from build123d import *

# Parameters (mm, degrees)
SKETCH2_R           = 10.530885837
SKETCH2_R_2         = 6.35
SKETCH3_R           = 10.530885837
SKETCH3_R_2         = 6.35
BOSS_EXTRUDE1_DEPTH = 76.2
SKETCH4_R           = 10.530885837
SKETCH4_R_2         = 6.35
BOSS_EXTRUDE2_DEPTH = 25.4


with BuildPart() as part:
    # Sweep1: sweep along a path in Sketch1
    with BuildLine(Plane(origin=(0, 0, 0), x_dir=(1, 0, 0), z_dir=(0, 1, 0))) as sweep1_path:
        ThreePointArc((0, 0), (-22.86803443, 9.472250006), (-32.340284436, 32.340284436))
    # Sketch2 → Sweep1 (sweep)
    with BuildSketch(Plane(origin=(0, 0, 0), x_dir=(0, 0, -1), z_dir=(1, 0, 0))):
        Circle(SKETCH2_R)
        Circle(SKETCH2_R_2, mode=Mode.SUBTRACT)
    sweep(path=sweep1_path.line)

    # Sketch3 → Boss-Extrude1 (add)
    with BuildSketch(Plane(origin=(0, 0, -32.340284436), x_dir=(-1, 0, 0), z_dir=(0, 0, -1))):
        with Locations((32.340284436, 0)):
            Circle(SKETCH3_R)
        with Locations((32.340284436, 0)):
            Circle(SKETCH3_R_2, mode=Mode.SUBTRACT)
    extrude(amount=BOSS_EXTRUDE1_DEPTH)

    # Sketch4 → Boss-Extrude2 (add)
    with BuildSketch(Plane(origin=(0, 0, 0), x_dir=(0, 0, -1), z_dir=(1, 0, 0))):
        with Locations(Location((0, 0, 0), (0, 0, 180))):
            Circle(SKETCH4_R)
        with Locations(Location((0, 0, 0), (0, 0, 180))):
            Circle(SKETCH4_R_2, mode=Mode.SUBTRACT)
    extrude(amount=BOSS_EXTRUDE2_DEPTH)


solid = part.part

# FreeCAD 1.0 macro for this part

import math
import FreeCAD as App
import Part
import Sketcher
from FreeCAD import Vector
Q = App.Units.Quantity

doc = App.newDocument("Part")
body = doc.addObject("PartDesign::Body", "Body")

# Sketch on YZ plane
sketch1 = body.newObject("Sketcher::SketchObject", "Sketch")
sketch1.AttachmentSupport = (doc.getObject("YZ_Plane"), [""])
sketch1.MapMode = "FlatFace"
sketch1.addGeometry([
    Part.Circle(Vector(0, 0, 0), Vector(0, 0, 1), 11),
    Part.Circle(Vector(0, 0, 0), Vector(0, 0, 1), 6),
], False)
sketch1.addConstraint([
    Sketcher.Constraint("Coincident", 0, 3, -1, 1),
    Sketcher.Constraint("Coincident", 1, 3, -1, 1),
    Sketcher.Constraint("Diameter", 1, Q("0.5 in")),
    Sketcher.Constraint("Diameter", 0, Q("21.061772 mm")),
])

# Sketch on XZ plane
sketch2 = body.newObject("Sketcher::SketchObject", "Sketch001")
sketch2.AttachmentSupport = (doc.getObject("XZ_Plane"), [""])
sketch2.MapMode = "FlatFace"
sketch2.addGeometry(Part.ArcOfCircle(Part.Circle(Vector(0, -32, 0), Vector(0, 0, 1), 32), math.radians(90), math.radians(180)), False)
sketch2.addConstraint([
    Sketcher.Constraint("Coincident", 0, 1, -1, 1),
    Sketcher.Constraint("PointOnObject", 0, 3, -2),
    Sketcher.Constraint("Radius", 0, Q("32.340284 mm")),
    Sketcher.Constraint("DistanceY", 0, 2, -1, 1, Q("32.340284 mm")),
])
doc.recompute()

additivepipe = body.newObject("PartDesign::AdditivePipe", "AdditivePipe")
additivepipe.Profile = sketch1
additivepipe.Spine = (sketch2, ["Edge1"])

# Sketch on XY plane
sketch3 = body.newObject("Sketcher::SketchObject", "Sketch002")
sketch3.AttachmentSupport = (doc.getObject("XY_Plane"), [""])
sketch3.MapMode = "FlatFace"
sketch3.AttachmentOffset = App.Placement(Vector(0, 0, -32.340284), App.Rotation())
sketch3.addGeometry([
    Part.Circle(Vector(-32, 0, 0), Vector(0, 0, 1), 11),
    Part.Circle(Vector(-32, 0, 0), Vector(0, 0, 1), 6),
], False)
sketch3.addConstraint([
    Sketcher.Constraint("Coincident", 1, 3, 0, 3),
    Sketcher.Constraint("PointOnObject", 0, 3, -1),
    Sketcher.Constraint("Diameter", 1, Q("0.5 in")),
    Sketcher.Constraint("Diameter", 0, Q("21.061772 mm")),
    Sketcher.Constraint("DistanceX", 0, 3, -1, 1, Q("32.340284 mm")),
])
pad1 = body.newObject("PartDesign::Pad", "Pad")
pad1.Profile = sketch3
pad1.Length = Q("3 in")
pad1.Reversed = True

# Sketch on YZ plane
sketch4 = body.newObject("Sketcher::SketchObject", "Sketch003")
sketch4.AttachmentSupport = (doc.getObject("YZ_Plane"), [""])
sketch4.MapMode = "FlatFace"
sketch4.addGeometry([
    Part.Circle(Vector(0, 0, 0), Vector(0, 0, 1), 11),
    Part.Circle(Vector(0, 0, 0), Vector(0, 0, 1), 6),
], False)
sketch4.addConstraint([
    Sketcher.Constraint("Coincident", 0, 3, -1, 1),
    Sketcher.Constraint("Coincident", 1, 3, -1, 1),
    Sketcher.Constraint("Diameter", 1, Q("0.5 in")),
    Sketcher.Constraint("Diameter", 0, Q("21.061772 mm")),
])
pad2 = body.newObject("PartDesign::Pad", "Pad001")
pad2.Profile = sketch4
pad2.Length = Q("1 in")

doc.recompute()
